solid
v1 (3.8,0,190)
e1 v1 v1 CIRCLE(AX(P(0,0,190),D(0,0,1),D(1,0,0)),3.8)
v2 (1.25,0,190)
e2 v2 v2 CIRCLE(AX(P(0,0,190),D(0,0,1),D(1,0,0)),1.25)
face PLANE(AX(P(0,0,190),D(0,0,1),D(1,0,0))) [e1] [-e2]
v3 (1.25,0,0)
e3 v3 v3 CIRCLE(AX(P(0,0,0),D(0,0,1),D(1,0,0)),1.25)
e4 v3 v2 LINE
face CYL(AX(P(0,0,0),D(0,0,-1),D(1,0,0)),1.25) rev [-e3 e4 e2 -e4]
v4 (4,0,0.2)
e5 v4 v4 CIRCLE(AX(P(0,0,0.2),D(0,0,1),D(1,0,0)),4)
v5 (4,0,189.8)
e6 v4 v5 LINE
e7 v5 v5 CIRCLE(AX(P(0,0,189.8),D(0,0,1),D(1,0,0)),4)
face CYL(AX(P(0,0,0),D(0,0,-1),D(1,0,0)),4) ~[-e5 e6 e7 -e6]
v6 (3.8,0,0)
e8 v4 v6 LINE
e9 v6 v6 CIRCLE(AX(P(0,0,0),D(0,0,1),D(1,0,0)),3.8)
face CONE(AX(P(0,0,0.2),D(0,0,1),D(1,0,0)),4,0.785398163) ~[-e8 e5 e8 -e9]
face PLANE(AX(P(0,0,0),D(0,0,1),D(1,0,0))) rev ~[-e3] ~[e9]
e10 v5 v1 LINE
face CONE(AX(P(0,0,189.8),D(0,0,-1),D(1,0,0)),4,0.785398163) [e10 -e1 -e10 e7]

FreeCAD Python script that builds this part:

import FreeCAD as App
import Part
import Sketcher


def edges_at(feature, points):
    """Names of the edges that pass closest to the given points."""
    edges = feature.Shape.Edges
    near = lambda p: min(range(len(edges)), key=lambda i: edges[i].distToShape(Part.Vertex(*p))[0])
    return sorted({f"Edge{near(p) + 1}" for p in points})

doc = App.newDocument("Part")
body = doc.addObject("PartDesign::Body", "Body")

sketch1 = body.newObject("Sketcher::SketchObject", "Sketch")
sketch1.AttachmentSupport = (doc.getObject("XY_Plane"), [""])
sketch1.MapMode = "FlatFace"
sketch1.addGeometry(Part.Circle(App.Vector(0, 0, 0), App.Vector(0, 0, 1), 4), False)
sketch1.addGeometry(Part.Circle(App.Vector(0, 0, 0), App.Vector(0, 0, 1), 1.2), False)
sketch1.addConstraint(Sketcher.Constraint("Coincident", 0, 3, -1, 1))
sketch1.addConstraint(Sketcher.Constraint("Coincident", 1, 3, -1, 1))
sketch1.addConstraint(Sketcher.Constraint("Diameter", 0, 8.0))
sketch1.addConstraint(Sketcher.Constraint("Diameter", 1, 2.5))
pad1 = body.newObject("PartDesign::Pad", "Pad")
pad1.Profile = sketch1
pad1.Length = 190
doc.recompute()

chamfer = body.newObject("PartDesign::Chamfer", "Chamfer")
chamfer.Base = (pad1, edges_at(pad1, [(-4, 0, 190), (-4, 0, 0)]))
chamfer.Size = 0.2

doc.recompute()
